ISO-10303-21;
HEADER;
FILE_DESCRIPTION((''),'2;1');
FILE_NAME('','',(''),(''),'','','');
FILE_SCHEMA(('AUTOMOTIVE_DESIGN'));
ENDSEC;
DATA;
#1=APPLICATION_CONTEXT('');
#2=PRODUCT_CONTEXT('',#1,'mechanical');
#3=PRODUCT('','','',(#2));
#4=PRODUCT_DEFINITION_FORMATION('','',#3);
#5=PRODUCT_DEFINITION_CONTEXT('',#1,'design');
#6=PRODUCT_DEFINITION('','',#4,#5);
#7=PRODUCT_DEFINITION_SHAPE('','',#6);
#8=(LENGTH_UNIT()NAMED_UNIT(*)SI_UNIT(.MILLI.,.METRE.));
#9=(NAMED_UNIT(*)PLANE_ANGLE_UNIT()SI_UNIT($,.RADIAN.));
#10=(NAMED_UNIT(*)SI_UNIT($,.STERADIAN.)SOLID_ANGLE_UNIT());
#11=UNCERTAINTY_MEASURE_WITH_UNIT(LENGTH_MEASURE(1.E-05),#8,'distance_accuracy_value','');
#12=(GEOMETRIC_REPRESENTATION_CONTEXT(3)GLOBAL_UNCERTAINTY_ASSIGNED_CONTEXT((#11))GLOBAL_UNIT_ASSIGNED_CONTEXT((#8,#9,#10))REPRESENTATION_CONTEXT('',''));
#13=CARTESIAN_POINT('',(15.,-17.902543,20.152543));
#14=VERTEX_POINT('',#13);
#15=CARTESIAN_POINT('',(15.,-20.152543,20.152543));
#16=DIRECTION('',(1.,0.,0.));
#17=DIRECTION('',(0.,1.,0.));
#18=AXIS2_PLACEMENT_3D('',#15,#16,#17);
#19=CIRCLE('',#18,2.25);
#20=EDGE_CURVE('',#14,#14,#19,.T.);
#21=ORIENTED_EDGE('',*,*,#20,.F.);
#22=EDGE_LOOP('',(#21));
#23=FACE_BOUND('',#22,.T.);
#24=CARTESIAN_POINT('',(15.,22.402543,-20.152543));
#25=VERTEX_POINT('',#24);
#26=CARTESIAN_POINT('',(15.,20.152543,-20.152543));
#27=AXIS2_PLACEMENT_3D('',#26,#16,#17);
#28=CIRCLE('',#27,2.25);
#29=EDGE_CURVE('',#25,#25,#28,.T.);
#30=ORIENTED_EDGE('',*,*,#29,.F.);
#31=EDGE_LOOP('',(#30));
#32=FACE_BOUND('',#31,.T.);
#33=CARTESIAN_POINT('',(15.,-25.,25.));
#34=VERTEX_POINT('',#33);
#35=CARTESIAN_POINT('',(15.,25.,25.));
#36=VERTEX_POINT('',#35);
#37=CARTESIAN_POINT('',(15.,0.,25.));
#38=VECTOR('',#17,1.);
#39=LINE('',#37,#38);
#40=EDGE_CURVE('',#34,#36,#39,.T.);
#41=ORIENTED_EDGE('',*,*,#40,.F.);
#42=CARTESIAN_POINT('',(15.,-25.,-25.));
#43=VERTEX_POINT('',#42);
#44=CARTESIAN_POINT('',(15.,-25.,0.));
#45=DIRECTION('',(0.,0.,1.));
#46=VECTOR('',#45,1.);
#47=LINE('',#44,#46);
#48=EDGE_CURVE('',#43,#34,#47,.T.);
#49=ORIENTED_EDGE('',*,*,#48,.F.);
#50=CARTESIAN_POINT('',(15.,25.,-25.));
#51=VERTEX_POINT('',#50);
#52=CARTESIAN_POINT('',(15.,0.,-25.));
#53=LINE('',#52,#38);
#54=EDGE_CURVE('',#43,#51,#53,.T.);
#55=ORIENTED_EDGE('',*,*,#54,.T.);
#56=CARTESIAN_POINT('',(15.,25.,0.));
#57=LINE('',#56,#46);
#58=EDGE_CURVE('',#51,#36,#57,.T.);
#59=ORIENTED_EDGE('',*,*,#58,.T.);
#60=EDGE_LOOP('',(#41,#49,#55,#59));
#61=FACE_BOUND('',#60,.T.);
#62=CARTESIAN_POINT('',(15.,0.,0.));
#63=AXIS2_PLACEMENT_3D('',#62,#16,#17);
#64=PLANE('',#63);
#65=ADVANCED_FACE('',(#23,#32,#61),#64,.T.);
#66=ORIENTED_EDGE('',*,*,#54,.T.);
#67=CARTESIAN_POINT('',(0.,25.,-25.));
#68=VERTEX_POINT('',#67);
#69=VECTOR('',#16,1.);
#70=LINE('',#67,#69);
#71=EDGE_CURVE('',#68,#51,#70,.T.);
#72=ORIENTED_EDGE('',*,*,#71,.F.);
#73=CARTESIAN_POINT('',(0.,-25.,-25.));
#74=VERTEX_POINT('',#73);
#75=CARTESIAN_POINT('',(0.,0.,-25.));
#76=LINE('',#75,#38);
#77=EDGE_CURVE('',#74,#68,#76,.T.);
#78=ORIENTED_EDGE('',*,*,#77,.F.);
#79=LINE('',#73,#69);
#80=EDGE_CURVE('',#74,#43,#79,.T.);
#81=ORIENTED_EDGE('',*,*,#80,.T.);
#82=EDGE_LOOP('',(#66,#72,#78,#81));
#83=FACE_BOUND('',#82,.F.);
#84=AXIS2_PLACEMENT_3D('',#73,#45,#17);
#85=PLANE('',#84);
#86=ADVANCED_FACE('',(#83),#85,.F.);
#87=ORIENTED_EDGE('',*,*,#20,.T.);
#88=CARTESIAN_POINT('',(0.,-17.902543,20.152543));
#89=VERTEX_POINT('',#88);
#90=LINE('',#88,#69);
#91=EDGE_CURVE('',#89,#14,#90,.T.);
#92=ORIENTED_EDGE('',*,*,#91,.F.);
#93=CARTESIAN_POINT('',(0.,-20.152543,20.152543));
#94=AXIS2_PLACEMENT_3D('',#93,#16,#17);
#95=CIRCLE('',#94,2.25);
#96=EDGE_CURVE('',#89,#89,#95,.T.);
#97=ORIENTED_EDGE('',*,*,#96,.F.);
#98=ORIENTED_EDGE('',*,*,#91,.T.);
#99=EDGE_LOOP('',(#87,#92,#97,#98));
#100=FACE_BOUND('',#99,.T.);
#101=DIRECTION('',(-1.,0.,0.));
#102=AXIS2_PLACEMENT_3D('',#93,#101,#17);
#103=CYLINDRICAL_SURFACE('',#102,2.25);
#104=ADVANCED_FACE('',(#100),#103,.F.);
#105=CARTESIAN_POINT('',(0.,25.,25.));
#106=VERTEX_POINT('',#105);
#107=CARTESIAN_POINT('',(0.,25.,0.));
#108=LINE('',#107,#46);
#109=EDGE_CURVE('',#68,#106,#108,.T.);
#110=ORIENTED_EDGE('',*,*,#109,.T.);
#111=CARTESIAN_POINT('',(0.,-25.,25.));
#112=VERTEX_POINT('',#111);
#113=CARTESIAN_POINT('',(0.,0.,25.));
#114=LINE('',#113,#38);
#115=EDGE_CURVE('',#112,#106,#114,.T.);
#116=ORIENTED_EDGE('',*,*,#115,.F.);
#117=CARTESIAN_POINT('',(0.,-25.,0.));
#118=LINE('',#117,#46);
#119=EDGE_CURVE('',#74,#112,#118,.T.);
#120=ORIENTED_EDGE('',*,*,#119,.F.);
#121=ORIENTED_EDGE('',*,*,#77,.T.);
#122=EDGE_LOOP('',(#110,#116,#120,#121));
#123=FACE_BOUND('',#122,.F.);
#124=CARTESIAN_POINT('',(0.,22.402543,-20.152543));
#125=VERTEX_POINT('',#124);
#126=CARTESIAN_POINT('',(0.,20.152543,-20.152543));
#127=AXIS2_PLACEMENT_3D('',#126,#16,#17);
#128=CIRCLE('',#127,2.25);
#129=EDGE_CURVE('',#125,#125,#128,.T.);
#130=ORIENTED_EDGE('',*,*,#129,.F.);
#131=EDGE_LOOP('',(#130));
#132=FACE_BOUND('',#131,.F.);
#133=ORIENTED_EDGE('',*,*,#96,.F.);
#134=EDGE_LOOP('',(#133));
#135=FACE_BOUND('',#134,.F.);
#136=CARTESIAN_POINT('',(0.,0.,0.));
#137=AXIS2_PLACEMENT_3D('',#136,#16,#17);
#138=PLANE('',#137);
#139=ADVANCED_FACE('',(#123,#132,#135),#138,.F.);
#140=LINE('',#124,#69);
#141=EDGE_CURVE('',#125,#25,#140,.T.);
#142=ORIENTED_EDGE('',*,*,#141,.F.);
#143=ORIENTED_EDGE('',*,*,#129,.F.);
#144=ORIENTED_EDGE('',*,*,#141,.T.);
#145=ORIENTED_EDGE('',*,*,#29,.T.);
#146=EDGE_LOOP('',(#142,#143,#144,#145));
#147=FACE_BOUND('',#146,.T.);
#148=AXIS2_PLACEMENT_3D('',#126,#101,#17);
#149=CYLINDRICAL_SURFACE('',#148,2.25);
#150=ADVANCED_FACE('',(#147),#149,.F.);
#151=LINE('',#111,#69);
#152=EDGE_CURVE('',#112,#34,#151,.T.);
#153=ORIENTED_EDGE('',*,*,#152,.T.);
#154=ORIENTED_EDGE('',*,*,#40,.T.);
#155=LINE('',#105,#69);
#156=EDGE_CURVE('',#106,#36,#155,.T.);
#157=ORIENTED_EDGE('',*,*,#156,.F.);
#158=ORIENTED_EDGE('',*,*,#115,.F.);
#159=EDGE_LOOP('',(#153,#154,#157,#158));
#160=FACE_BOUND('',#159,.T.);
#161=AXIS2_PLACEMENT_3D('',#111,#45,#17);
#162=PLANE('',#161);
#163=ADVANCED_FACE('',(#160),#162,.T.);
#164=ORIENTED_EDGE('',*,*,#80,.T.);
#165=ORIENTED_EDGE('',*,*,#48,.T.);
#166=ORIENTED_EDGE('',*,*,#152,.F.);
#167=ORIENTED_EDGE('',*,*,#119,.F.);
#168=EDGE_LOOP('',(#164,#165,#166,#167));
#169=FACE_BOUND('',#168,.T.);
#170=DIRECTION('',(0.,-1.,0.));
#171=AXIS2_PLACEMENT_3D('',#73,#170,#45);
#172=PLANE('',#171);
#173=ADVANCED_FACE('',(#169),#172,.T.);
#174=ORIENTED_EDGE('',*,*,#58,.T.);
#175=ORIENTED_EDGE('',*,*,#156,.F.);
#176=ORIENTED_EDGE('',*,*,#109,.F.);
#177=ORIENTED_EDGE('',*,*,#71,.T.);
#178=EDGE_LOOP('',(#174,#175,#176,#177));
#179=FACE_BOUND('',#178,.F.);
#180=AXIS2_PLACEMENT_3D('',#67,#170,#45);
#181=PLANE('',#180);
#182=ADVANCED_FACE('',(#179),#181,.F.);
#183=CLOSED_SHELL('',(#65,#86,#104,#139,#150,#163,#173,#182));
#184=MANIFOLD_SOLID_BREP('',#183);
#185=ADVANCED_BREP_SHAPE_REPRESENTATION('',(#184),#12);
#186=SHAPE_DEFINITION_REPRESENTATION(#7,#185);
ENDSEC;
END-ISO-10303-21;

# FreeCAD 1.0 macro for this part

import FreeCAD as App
import Part
import Sketcher

V = App.Vector


def add_polygon(sketch, points):
    """Adds a closed chain of lines whose ends are joined by coincident constraints."""
    first, n = sketch.GeometryCount, len(points)
    for a, b in zip(points, points[1:] + points[:1]):
        sketch.addGeometry(Part.LineSegment(App.Vector(*a, 0), App.Vector(*b, 0)), False)
    for i in range(n):
        sketch.addConstraint(Sketcher.Constraint("Coincident", first + i, 2, first + (i + 1) % n, 1))

doc = App.newDocument("Part")
body = doc.addObject("PartDesign::Body", "Body")

# Sketch on YZ plane
sketch1 = body.newObject("Sketcher::SketchObject", "Sketch")
sketch1.AttachmentSupport = (doc.getObject("YZ_Plane"), [""])
sketch1.MapMode = "FlatFace"
add_polygon(sketch1, [(-25, 25), (-25, -25), (25, -25), (25, 25)])  # lines 0-3
sketch1.addGeometry(Part.Circle(V(20.2, -20.2, 0), V(0, 0, 1), 2.2), False)  # 4
sketch1.addGeometry(Part.Circle(V(-20.2, 20.2, 0), V(0, 0, 1), 2.2), False)  # 5
sketch1.addConstraint([
    Sketcher.Constraint("Vertical", 0),
    Sketcher.Constraint("Horizontal", 1),
    Sketcher.Constraint("Vertical", 2),
    Sketcher.Constraint("Horizontal", 3),
    Sketcher.Constraint("Equal", 4, 5),
    Sketcher.Constraint("Symmetric", 4, 3, 5, 3, -1, 1),
    Sketcher.Constraint("Symmetric", 0, 2, 2, 2, -1, 1),
    Sketcher.Constraint("Equal", 3, 0),
    Sketcher.Constraint("Diameter", 4, 4.5),
    Sketcher.Constraint("DistanceX", 1, 1, 1, 2, 50.0),
    Sketcher.Constraint("DistanceX", -1, 1, 4, 3, 20.152543),
    Sketcher.Constraint("DistanceY", 4, 3, -1, 1, 20.152543),
])
pad1 = body.newObject("PartDesign::Pad", "Pad")
pad1.Profile = sketch1
pad1.Length = 15

doc.recompute()
